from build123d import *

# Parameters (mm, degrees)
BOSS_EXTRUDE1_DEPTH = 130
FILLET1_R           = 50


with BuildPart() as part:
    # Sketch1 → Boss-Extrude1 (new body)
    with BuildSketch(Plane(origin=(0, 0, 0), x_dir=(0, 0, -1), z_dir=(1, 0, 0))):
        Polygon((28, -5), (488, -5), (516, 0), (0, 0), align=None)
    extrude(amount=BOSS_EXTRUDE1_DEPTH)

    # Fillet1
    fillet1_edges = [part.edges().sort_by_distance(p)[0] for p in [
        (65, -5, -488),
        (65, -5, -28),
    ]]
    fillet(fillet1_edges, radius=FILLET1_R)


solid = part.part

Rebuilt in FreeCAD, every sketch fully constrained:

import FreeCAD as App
import Part
import Sketcher

V = App.Vector


def edges_at(feature, points):
    """Names of the edges that pass closest to the given points."""
    edges = feature.Shape.Edges
    near = lambda p: min(range(len(edges)), key=lambda i: edges[i].distToShape(Part.Vertex(*p))[0])
    return sorted({f"Edge{near(p) + 1}" for p in points})

doc = App.newDocument("Part")
params = doc.addObject("Spreadsheet::Sheet", "Params")
for row, (alias, value) in enumerate([
    ("sketch1_height", "460 mm"),
    ("sketch1_height2", "516 mm"),
    ("pad1_length", "130 mm"),
    ("fillet_radius", "50 mm"),
], start=1):
    params.set(f"A{row}", alias)
    params.set(f"B{row}", "=" + value)
    params.setAlias(f"B{row}", alias)

body = doc.addObject("PartDesign::Body", "Body")

# Sketch on YZ plane
sketch1 = doc.addObject("Sketcher::SketchObject", "Sketch")
body.addObject(sketch1)
sketch1.AttachmentSupport = (doc.YZ_Plane, [""])
sketch1.MapMode = "FlatFace"
sketch1.addGeometry([
    Part.LineSegment(V(-5, -28, 0), V(-5, -488, 0)),
    Part.LineSegment(V(-5, -488, 0), V(0, -516, 0)),
    Part.LineSegment(V(0, -516, 0), V(0, 0, 0)),
    Part.LineSegment(V(0, 0, 0), V(-5, -28, 0)),
], False)
sketch1.addConstraint([
    Sketcher.Constraint("Coincident", 0, 2, 1, 1),
    Sketcher.Constraint("Coincident", 1, 2, 2, 1),
    Sketcher.Constraint("Coincident", 2, 2, 3, 1),
    Sketcher.Constraint("Coincident", 3, 2, 0, 1),
    Sketcher.Constraint("Vertical", 0),
    Sketcher.Constraint("Vertical", 2),
    Sketcher.Constraint("Coincident", 2, 2, -1, 1),
    Sketcher.Constraint("Equal", 1, 3),
    Sketcher.Constraint("DistanceY", 0, 2, 0, 1, 460.0),
    Sketcher.Constraint("DistanceY", 2, 1, 2, 2, 516.0),
    Sketcher.Constraint("DistanceX", 0, 2, -1, 1, 5.0),
])
sketch1.setExpression("Constraints[8]", "Params.sketch1_height")
sketch1.setExpression("Constraints[9]", "Params.sketch1_height2")
pad1 = doc.addObject("PartDesign::Pad", "Pad")
body.addObject(pad1)
pad1.Profile = sketch1
pad1.setExpression("Length", "Params.pad1_length")
doc.recompute()

fillet = doc.addObject("PartDesign::Fillet", "Fillet")
body.addObject(fillet)
fillet.Base = (pad1, edges_at(pad1, [(65, -5, -488), (65, -5, -28)]))
fillet.setExpression("Radius", "Params.fillet_radius")

doc.recompute()
